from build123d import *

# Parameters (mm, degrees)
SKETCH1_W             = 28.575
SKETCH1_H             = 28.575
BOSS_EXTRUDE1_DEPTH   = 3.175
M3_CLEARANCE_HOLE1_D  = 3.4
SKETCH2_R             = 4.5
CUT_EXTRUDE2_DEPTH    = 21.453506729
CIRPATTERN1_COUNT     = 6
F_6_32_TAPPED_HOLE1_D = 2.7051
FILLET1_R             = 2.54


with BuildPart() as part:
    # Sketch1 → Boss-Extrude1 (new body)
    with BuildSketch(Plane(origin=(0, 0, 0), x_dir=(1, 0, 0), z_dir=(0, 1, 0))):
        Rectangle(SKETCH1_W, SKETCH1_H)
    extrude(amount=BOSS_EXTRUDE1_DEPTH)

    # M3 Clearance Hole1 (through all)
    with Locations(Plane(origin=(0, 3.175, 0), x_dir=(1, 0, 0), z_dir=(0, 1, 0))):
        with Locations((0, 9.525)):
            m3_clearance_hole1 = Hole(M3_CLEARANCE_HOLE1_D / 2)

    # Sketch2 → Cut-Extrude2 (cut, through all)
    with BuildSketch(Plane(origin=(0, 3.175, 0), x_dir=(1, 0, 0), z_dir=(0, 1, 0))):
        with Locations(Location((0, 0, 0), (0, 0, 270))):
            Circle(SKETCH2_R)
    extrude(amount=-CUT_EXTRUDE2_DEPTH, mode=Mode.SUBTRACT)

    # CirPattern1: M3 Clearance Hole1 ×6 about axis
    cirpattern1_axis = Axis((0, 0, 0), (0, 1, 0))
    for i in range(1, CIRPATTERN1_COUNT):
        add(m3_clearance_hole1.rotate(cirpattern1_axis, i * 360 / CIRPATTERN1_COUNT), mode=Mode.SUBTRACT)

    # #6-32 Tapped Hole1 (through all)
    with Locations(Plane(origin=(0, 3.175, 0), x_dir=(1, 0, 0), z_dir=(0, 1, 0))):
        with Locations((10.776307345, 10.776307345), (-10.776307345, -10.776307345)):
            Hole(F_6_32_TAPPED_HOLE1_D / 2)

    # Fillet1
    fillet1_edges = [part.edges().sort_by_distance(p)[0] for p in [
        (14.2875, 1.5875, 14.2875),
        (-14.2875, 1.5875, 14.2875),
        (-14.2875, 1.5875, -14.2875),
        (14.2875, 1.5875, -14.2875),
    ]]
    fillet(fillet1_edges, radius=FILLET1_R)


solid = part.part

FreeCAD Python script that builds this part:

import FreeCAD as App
import Part
import Sketcher
from FreeCAD import Vector
Q = App.Units.Quantity


def edges_at(feature, points):
    """Names of the edges that pass closest to the given points."""
    edges = feature.Shape.Edges
    near = lambda p: min(range(len(edges)), key=lambda i: edges[i].distToShape(Part.Vertex(*p))[0])
    return sorted({f"Edge{near(p) + 1}" for p in points})

doc = App.newDocument("Part")
body = doc.addObject("PartDesign::Body", "Body")

# Sketch on XZ plane
sketch1 = doc.addObject("Sketcher::SketchObject", "Sketch")
body.addObject(sketch1)
sketch1.AttachmentSupport = (doc.XZ_Plane, [""])
sketch1.MapMode = "FlatFace"
sketch1.addGeometry([
    Part.LineSegment(Vector(-14.2875, -14.2875, 0), Vector(-14.2875, 14.2875, 0)),
    Part.LineSegment(Vector(-14.2875, 14.2875, 0), Vector(14.2875, 14.2875, 0)),
    Part.LineSegment(Vector(14.2875, 14.2875, 0), Vector(14.2875, -14.2875, 0)),
    Part.LineSegment(Vector(14.2875, -14.2875, 0), Vector(-14.2875, -14.2875, 0)),
], False)
sketch1.addConstraint([
    Sketcher.Constraint("Coincident", 0, 2, 1, 1),
    Sketcher.Constraint("Coincident", 1, 2, 2, 1),
    Sketcher.Constraint("Coincident", 2, 2, 3, 1),
    Sketcher.Constraint("Coincident", 3, 2, 0, 1),
    Sketcher.Constraint("Vertical", 0),
    Sketcher.Constraint("Horizontal", 1),
    Sketcher.Constraint("Vertical", 2),
    Sketcher.Constraint("Horizontal", 3),
    Sketcher.Constraint("Symmetric", 0, 2, 2, 2, -1, 1),
    Sketcher.Constraint("Equal", 3, 0),
    Sketcher.Constraint("DistanceX", 1, 1, 1, 2, Q("1.125 in")),
])
pad1 = doc.addObject("PartDesign::Pad", "Pad")
body.addObject(pad1)
pad1.Profile = sketch1
pad1.Length = Q("0.125 in")
pad1.Reversed = True

# Sketch on XZ plane
sketch2 = doc.addObject("Sketcher::SketchObject", "Sketch001")
body.addObject(sketch2)
sketch2.AttachmentSupport = (doc.XZ_Plane, [""])
sketch2.MapMode = "FlatFace"
sketch2.AttachmentOffset = App.Placement(Vector(0, 0, -0.125 * 25.4), App.Rotation())
sketch2.addGeometry(Part.Circle(Vector(0, -9.525, 0), Vector(0, 0, 1), 1.7), False)
sketch2.addConstraint([
    Sketcher.Constraint("PointOnObject", 0, 3, -2),
    Sketcher.Constraint("Diameter", 0, 3.4),
    Sketcher.Constraint("DistanceY", 0, 3, -1, 1, Q("0.375 in")),
])
doc.recompute()
hole = doc.addObject("PartDesign::Hole", "Hole")
body.addObject(hole)
hole.Profile = sketch2
hole.ThreadType = "None"
hole.Diameter = 3.4
hole.DepthType = "ThroughAll"
hole.Reversed = True

# Sketch on XZ plane
sketch3 = doc.addObject("Sketcher::SketchObject", "Sketch002")
body.addObject(sketch3)
sketch3.AttachmentSupport = (doc.XZ_Plane, [""])
sketch3.MapMode = "FlatFace"
sketch3.AttachmentOffset = App.Placement(Vector(0, 0, -0.125 * 25.4), App.Rotation())
sketch3.addGeometry(Part.Circle(Vector(0, 0, 0), Vector(0, 0, 1), 4.5), False)
sketch3.addConstraint([
    Sketcher.Constraint("Coincident", 0, 3, -1, 1),
    Sketcher.Constraint("Diameter", 0, 9.0),
])
pocket1 = doc.addObject("PartDesign::Pocket", "Pocket")
body.addObject(pocket1)
pocket1.Profile = sketch3
pocket1.Type = "ThroughAll"
pocket1.Reversed = True
doc.recompute()

polarpattern = doc.addObject("PartDesign::PolarPattern", "PolarPattern")
body.addObject(polarpattern)
polarpattern.Originals = [hole]
polarpattern.Axis = (doc.Y_Axis, [""])
polarpattern.Angle = 360
polarpattern.Occurrences = 6
body.Tip = polarpattern

# Sketch on XZ plane
sketch4 = doc.addObject("Sketcher::SketchObject", "Sketch003")
body.addObject(sketch4)
sketch4.AttachmentSupport = (doc.XZ_Plane, [""])
sketch4.MapMode = "FlatFace"
sketch4.AttachmentOffset = App.Placement(Vector(0, 0, -0.125 * 25.4), App.Rotation())
sketch4.addGeometry([
    Part.Circle(Vector(10.776307, -10.776307, 0), Vector(0, 0, 1), 1.35255),
    Part.Circle(Vector(-10.776307, 10.776307, 0), Vector(0, 0, 1), 1.35255),
], False)
sketch4.addConstraint([
    Sketcher.Constraint("Equal", 0, 1),
    Sketcher.Constraint("Symmetric", 0, 3, 1, 3, -1, 1),
    Sketcher.Constraint("Diameter", 0, Q("0.1065 in")),
    Sketcher.Constraint("DistanceX", -1, 1, 0, 3, 10.776307),
    Sketcher.Constraint("DistanceY", 0, 3, -1, 1, 10.776307),
])
doc.recompute()
hole2 = doc.addObject("PartDesign::Hole", "Hole001")
body.addObject(hole2)
hole2.Profile = sketch4
hole2.ThreadType = "None"
hole2.Diameter = Q("0.1065 in")
hole2.DepthType = "ThroughAll"
hole2.Reversed = True
doc.recompute()

fillet = doc.addObject("PartDesign::Fillet", "Fillet")
body.addObject(fillet)
fillet.Base = (hole2, edges_at(hole2, [
    (14.287, 1.587, 14.287),
    (-14.287, 1.587, 14.287),
    (-14.287, 1.587, -14.287),
    (14.287, 1.587, -14.287),
]))
fillet.Radius = Q("0.1 in")

doc.recompute()
